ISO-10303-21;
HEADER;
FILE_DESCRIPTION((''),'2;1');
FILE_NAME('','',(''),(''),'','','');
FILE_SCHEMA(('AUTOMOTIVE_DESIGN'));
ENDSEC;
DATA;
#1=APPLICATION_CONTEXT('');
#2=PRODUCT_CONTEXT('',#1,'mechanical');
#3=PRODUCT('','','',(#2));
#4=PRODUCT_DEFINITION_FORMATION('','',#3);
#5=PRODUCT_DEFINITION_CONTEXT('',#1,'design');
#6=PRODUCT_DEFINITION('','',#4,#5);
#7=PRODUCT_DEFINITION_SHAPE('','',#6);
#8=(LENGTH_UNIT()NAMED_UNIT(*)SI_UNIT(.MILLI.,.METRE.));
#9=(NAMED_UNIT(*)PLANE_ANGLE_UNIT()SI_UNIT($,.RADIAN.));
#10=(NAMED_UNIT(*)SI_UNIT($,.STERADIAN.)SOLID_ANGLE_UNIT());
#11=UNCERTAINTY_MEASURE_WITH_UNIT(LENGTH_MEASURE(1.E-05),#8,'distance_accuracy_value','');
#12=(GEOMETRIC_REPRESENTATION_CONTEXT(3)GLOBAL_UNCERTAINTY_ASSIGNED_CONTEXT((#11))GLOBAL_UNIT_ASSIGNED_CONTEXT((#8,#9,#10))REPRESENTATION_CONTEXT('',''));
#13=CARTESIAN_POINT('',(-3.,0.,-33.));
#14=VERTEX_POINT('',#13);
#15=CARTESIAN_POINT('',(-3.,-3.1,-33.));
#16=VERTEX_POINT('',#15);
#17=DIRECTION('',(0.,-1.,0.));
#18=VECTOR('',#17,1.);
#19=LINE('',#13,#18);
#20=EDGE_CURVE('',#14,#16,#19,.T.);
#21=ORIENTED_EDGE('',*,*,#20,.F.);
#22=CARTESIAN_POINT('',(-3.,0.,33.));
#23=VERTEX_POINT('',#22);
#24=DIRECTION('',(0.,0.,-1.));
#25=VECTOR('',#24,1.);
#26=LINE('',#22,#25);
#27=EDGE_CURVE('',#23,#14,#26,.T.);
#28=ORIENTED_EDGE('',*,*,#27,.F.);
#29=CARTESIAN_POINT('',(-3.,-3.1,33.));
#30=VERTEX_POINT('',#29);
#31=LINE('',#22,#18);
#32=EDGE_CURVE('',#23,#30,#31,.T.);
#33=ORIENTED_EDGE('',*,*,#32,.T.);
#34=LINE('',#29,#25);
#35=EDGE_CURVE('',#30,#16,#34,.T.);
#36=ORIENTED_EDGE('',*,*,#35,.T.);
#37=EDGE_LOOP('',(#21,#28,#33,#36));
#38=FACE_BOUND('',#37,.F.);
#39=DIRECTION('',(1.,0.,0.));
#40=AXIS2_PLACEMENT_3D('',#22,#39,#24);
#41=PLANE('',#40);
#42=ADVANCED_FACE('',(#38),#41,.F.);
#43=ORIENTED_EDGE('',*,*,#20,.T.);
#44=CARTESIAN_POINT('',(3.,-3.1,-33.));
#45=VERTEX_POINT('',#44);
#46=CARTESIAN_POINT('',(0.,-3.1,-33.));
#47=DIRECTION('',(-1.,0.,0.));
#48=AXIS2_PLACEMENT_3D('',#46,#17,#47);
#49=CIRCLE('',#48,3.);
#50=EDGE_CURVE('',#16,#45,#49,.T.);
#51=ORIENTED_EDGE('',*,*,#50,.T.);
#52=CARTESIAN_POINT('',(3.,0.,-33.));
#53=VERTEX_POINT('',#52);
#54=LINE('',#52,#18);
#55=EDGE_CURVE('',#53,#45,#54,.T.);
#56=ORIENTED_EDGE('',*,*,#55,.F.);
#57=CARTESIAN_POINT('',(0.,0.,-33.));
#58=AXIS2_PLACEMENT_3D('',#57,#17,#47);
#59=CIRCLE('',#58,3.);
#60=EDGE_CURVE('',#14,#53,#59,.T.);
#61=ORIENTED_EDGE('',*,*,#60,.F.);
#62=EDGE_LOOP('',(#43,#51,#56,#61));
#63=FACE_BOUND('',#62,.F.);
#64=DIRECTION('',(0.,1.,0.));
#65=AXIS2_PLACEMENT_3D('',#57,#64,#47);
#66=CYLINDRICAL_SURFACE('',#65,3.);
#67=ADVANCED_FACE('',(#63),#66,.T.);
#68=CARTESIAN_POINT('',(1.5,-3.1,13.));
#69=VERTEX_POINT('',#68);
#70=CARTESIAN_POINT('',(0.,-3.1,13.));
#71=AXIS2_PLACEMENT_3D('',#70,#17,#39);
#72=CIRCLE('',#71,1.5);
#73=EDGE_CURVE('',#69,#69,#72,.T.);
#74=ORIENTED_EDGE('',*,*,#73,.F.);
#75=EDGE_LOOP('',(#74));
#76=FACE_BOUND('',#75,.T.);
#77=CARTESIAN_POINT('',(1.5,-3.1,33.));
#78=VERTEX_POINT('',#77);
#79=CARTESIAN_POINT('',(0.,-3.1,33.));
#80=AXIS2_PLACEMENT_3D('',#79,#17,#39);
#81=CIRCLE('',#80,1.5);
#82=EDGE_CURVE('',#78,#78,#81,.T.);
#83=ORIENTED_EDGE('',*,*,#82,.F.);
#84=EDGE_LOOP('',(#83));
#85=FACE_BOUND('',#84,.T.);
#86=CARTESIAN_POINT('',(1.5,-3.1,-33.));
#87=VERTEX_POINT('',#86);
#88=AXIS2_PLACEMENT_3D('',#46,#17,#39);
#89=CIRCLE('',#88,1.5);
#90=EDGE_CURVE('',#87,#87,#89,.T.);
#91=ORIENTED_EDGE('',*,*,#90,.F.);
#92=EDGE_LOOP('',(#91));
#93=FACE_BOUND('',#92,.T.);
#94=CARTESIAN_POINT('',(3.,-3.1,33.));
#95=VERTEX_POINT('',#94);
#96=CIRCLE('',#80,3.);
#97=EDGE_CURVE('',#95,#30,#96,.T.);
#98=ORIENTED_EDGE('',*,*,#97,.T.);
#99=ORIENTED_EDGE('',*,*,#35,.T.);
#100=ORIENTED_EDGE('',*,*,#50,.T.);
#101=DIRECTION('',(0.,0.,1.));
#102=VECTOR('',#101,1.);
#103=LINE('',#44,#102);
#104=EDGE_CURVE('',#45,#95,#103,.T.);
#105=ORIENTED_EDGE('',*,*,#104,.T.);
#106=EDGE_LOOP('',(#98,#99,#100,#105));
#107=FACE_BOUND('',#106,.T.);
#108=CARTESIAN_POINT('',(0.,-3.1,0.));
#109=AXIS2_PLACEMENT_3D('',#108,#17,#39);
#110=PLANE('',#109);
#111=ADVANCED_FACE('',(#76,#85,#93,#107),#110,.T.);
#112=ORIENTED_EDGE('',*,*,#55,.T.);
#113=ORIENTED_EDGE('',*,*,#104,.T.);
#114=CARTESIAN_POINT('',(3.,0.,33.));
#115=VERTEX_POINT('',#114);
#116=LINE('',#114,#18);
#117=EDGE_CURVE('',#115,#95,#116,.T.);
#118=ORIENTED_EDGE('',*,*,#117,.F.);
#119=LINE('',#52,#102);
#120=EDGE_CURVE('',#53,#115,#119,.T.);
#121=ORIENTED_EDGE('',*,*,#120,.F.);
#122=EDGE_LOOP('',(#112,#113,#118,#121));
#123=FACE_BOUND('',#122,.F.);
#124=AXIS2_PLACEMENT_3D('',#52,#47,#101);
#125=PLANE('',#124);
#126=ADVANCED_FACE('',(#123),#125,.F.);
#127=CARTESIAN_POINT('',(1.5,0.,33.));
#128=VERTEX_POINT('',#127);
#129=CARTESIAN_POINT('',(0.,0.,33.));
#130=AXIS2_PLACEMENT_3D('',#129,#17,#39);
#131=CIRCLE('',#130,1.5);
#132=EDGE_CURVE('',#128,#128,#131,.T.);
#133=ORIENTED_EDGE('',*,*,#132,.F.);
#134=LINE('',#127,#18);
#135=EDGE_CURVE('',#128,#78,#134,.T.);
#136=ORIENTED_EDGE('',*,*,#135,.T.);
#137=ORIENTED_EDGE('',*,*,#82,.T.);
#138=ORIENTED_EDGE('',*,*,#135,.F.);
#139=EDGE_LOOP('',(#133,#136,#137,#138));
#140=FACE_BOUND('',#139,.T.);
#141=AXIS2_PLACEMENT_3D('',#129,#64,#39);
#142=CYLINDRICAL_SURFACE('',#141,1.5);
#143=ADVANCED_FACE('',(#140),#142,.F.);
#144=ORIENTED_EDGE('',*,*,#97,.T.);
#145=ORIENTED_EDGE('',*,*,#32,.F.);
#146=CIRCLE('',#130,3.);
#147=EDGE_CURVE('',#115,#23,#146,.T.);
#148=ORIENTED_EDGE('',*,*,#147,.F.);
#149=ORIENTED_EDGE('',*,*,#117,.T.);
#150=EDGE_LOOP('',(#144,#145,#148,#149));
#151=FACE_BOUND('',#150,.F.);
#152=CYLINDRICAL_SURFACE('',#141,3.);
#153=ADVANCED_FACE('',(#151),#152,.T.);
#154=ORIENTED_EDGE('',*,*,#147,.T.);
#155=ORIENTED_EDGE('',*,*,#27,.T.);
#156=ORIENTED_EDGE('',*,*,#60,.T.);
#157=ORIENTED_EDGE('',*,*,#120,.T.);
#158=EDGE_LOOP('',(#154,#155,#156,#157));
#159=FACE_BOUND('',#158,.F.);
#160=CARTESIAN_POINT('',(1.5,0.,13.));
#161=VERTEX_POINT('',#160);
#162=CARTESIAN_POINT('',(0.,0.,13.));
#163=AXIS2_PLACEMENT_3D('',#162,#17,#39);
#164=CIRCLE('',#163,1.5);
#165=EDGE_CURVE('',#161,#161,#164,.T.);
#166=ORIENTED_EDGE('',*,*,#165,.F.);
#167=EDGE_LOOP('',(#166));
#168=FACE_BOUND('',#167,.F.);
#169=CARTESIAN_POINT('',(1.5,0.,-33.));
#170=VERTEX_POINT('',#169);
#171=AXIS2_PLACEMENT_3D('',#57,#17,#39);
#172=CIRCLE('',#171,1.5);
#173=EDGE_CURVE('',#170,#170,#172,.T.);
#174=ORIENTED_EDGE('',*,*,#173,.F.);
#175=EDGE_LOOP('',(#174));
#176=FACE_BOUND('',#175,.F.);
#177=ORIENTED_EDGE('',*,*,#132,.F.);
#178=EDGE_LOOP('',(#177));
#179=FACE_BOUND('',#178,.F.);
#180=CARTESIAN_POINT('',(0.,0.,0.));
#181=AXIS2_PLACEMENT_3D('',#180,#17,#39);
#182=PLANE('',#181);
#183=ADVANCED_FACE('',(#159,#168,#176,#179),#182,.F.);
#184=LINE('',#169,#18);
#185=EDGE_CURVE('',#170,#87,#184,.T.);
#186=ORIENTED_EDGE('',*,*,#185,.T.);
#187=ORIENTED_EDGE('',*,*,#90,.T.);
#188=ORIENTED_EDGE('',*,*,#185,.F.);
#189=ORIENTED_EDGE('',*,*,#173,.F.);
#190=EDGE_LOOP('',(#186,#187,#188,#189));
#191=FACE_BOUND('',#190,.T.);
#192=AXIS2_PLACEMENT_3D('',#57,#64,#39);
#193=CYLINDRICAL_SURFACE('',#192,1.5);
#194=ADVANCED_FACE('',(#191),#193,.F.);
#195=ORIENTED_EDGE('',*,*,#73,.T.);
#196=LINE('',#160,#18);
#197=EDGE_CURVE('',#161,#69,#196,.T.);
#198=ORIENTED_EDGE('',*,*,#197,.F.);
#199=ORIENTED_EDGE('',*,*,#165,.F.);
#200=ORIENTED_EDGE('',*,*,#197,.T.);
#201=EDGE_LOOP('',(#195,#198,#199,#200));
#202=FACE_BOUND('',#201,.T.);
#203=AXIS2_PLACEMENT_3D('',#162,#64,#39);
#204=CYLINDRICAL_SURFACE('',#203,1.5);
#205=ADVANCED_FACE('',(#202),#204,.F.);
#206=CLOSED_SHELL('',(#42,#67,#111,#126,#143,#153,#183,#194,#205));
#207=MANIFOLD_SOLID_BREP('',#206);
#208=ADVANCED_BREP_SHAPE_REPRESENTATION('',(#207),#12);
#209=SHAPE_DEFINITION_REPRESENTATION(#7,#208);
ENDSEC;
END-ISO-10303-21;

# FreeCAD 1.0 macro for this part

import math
import FreeCAD as App
import Part
import Sketcher

doc = App.newDocument("Part")
body = doc.addObject("PartDesign::Body", "Body")

# Sketch on XZ plane
sketch1 = body.newObject("Sketcher::SketchObject", "Sketch")
sketch1.AttachmentSupport = (doc.getObject("XZ_Plane"), [""])
sketch1.MapMode = "FlatFace"
sketch1.addGeometry(Part.ArcOfCircle(Part.Circle(App.Vector(0, 33, 0), App.Vector(0, 0, 1), 3), math.radians(0), math.radians(180)), False)
sketch1.addGeometry(Part.LineSegment(App.Vector(-3, 33, 0), App.Vector(-3, -33, 0)), False)
sketch1.addGeometry(Part.ArcOfCircle(Part.Circle(App.Vector(0, -33, 0), App.Vector(0, 0, 1), 3), math.radians(180), math.radians(360)), False)
sketch1.addGeometry(Part.LineSegment(App.Vector(3, -33, 0), App.Vector(3, 33, 0)), False)
sketch1.addGeometry(Part.Circle(App.Vector(0, -33, 0), App.Vector(0, 0, 1), 1.5), False)
sketch1.addGeometry(Part.Circle(App.Vector(0, 13, 0), App.Vector(0, 0, 1), 1.5), False)
sketch1.addGeometry(Part.Circle(App.Vector(0, 33, 0), App.Vector(0, 0, 1), 1.5), False)
sketch1.addConstraint(Sketcher.Constraint("Tangent", 0, 2, 1, 1))
sketch1.addConstraint(Sketcher.Constraint("Tangent", 1, 2, 2, 1))
sketch1.addConstraint(Sketcher.Constraint("Tangent", 2, 2, 3, 1))
sketch1.addConstraint(Sketcher.Constraint("Tangent", 3, 2, 0, 1))
sketch1.addConstraint(Sketcher.Constraint("Vertical", 1))
sketch1.addConstraint(Sketcher.Constraint("Vertical", 3))
sketch1.addConstraint(Sketcher.Constraint("Coincident", 4, 3, 2, 3))
sketch1.addConstraint(Sketcher.Constraint("Coincident", 6, 3, 0, 3))
sketch1.addConstraint(Sketcher.Constraint("Equal", 4, 5))
sketch1.addConstraint(Sketcher.Constraint("Equal", 5, 6))
sketch1.addConstraint(Sketcher.Constraint("Symmetric", 0, 3, 2, 3, -1, 1))
sketch1.addConstraint(Sketcher.Constraint("PointOnObject", 5, 3, -2))
sketch1.addConstraint(Sketcher.Constraint("Diameter", 4, 3.0))
sketch1.addConstraint(Sketcher.Constraint("Radius", 0, 3.0))
sketch1.addConstraint(Sketcher.Constraint("DistanceY", 1, 2, 1, 1, 66.0))
sketch1.addConstraint(Sketcher.Constraint("DistanceY", -1, 1, 5, 3, 13.0))
pad1 = body.newObject("PartDesign::Pad", "Pad")
pad1.Profile = sketch1
pad1.Length = 3.1

doc.recompute()
